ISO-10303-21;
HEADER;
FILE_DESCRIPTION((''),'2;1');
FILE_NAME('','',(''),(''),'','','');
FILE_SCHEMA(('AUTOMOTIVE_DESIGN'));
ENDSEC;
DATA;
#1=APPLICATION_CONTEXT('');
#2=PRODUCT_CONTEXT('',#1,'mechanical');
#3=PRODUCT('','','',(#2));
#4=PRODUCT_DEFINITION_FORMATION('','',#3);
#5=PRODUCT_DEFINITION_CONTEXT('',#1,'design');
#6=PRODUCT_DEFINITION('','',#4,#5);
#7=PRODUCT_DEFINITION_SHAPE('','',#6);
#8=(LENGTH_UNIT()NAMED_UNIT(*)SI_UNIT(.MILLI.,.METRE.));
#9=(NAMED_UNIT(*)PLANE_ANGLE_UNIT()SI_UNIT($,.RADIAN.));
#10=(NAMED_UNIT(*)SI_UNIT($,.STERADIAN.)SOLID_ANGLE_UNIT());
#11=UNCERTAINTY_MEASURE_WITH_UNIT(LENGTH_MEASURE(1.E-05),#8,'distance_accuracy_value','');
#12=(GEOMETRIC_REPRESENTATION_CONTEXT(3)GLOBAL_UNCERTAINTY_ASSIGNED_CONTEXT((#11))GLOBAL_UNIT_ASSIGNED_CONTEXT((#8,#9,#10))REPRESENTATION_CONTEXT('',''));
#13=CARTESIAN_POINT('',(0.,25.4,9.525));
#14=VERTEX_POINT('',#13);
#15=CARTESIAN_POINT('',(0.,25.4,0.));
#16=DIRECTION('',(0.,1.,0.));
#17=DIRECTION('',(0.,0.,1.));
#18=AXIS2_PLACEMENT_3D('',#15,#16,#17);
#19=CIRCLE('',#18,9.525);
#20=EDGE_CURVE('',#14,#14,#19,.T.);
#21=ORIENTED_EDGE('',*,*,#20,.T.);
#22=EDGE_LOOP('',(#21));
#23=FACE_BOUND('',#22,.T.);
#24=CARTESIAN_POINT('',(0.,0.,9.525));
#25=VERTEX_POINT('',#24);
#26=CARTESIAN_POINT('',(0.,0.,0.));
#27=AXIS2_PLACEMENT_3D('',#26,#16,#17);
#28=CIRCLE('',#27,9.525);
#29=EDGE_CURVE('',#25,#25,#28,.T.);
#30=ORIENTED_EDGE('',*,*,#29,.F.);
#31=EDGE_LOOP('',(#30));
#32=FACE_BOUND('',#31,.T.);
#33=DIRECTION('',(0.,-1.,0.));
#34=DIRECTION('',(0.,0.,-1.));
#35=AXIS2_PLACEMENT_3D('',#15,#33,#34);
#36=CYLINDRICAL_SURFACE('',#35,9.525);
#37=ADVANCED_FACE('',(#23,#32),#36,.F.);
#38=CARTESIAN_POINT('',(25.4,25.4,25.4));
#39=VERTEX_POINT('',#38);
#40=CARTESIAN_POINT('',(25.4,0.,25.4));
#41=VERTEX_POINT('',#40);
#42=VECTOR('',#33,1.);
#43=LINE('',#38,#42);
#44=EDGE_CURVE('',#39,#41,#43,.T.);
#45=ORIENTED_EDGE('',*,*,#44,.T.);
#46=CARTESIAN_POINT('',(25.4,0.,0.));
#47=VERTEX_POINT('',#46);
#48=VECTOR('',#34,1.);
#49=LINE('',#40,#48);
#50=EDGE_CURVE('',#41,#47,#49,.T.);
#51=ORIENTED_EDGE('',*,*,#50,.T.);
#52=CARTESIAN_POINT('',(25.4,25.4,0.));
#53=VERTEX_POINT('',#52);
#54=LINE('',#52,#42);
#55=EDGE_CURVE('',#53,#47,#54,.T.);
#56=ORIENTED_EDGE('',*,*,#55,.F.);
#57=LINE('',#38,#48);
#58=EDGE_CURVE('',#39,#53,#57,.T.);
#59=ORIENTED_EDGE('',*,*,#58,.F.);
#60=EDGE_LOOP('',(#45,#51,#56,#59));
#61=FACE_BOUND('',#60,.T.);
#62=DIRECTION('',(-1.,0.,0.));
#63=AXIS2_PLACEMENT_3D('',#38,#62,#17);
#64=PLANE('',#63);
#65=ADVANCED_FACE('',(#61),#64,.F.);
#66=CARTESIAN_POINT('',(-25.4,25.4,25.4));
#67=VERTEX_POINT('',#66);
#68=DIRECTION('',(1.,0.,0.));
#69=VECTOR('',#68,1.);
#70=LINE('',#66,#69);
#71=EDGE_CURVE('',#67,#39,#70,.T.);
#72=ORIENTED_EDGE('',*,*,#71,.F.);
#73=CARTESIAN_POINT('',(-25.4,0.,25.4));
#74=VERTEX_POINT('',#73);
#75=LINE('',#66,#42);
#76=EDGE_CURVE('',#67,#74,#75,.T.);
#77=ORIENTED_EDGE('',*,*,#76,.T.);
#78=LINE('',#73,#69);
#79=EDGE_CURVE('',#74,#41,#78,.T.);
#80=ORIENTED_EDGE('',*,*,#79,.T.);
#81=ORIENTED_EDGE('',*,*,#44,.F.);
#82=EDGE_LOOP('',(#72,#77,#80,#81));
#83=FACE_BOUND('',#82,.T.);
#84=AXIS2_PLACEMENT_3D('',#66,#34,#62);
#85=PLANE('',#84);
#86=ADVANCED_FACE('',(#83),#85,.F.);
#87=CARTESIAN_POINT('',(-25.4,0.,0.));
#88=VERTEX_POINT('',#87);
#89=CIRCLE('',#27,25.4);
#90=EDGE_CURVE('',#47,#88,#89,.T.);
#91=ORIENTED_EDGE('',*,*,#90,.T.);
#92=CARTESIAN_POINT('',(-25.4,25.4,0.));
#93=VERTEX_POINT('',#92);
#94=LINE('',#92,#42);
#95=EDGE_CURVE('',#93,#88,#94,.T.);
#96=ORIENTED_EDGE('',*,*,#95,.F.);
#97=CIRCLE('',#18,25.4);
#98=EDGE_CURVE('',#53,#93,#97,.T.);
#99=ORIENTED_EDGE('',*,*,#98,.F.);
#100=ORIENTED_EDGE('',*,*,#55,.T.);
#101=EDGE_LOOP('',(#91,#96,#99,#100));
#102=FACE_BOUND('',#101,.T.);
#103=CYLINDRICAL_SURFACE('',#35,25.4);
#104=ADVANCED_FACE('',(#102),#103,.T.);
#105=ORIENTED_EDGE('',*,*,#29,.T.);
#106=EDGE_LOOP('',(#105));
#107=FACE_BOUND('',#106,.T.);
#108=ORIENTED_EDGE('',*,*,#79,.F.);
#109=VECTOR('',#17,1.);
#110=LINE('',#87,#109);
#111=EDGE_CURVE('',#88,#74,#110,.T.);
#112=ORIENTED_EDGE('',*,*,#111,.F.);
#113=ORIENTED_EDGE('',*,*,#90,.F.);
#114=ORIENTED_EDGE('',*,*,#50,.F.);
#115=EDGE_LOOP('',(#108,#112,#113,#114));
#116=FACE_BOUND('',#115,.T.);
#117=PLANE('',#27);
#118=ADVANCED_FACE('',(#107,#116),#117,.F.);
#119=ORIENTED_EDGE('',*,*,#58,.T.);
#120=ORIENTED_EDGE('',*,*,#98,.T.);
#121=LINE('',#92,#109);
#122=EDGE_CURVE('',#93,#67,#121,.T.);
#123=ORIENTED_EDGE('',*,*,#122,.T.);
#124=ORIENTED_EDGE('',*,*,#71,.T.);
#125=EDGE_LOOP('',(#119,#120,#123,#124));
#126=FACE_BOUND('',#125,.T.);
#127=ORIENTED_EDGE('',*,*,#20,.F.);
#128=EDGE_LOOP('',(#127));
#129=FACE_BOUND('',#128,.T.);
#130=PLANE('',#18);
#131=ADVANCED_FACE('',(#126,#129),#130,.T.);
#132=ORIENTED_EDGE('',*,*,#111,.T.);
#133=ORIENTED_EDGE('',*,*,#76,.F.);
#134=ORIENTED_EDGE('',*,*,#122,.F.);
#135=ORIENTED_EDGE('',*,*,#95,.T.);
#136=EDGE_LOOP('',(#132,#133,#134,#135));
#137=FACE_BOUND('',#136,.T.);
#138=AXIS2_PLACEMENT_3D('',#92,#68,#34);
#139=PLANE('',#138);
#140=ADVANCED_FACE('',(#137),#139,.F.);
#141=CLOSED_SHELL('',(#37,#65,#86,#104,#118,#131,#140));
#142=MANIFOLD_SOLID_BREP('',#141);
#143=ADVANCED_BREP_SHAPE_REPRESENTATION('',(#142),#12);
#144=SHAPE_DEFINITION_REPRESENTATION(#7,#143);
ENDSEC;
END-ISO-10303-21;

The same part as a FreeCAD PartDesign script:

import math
import FreeCAD as App
import Part
import Sketcher

V = App.Vector
Q = App.Units.Quantity

doc = App.newDocument("Part")
body = doc.addObject("PartDesign::Body", "Body")

# Sketch on XZ plane
sketch1 = doc.addObject("Sketcher::SketchObject", "Sketch")
body.addObject(sketch1)
sketch1.AttachmentSupport = (doc.XZ_Plane, [""])
sketch1.MapMode = "FlatFace"
sketch1.addGeometry([
    Part.LineSegment(V(-25.4, 0, 0), V(-25.4, 25.4, 0)),  # 0
    Part.LineSegment(V(-25.4, 25.4, 0), V(25.4, 25.4, 0)),  # 1
    Part.LineSegment(V(25.4, 25.4, 0), V(25.4, 0, 0)),  # 2
    Part.ArcOfCircle(Part.Circle(V(0, 0, 0), V(0, 0, 1), 25.4), math.radians(180), math.radians(360)),  # 3
    Part.Circle(V(0, 0, 0), V(0, 0, 1), 9.525),  # 4
], False)
sketch1.addConstraint([
    Sketcher.Constraint("Coincident", 0, 2, 1, 1),
    Sketcher.Constraint("Coincident", 1, 2, 2, 1),
    Sketcher.Constraint("Tangent", 2, 2, 3, 2),
    Sketcher.Constraint("Tangent", 3, 1, 0, 1),
    Sketcher.Constraint("Vertical", 0),
    Sketcher.Constraint("Horizontal", 1),
    Sketcher.Constraint("Vertical", 2),
    Sketcher.Constraint("Coincident", 3, 3, -1, 1),
    Sketcher.Constraint("Coincident", 4, 3, -1, 1),
    Sketcher.Constraint("Radius", 3, Q("1 in")),
    Sketcher.Constraint("Diameter", 4, Q("0.75 in")),
    Sketcher.Constraint("DistanceY", 0, 1, 0, 2, Q("1 in")),
])
pad1 = doc.addObject("PartDesign::Pad", "Pad")
body.addObject(pad1)
pad1.Profile = sketch1
pad1.Length = Q("1 in")
pad1.Reversed = True

doc.recompute()
